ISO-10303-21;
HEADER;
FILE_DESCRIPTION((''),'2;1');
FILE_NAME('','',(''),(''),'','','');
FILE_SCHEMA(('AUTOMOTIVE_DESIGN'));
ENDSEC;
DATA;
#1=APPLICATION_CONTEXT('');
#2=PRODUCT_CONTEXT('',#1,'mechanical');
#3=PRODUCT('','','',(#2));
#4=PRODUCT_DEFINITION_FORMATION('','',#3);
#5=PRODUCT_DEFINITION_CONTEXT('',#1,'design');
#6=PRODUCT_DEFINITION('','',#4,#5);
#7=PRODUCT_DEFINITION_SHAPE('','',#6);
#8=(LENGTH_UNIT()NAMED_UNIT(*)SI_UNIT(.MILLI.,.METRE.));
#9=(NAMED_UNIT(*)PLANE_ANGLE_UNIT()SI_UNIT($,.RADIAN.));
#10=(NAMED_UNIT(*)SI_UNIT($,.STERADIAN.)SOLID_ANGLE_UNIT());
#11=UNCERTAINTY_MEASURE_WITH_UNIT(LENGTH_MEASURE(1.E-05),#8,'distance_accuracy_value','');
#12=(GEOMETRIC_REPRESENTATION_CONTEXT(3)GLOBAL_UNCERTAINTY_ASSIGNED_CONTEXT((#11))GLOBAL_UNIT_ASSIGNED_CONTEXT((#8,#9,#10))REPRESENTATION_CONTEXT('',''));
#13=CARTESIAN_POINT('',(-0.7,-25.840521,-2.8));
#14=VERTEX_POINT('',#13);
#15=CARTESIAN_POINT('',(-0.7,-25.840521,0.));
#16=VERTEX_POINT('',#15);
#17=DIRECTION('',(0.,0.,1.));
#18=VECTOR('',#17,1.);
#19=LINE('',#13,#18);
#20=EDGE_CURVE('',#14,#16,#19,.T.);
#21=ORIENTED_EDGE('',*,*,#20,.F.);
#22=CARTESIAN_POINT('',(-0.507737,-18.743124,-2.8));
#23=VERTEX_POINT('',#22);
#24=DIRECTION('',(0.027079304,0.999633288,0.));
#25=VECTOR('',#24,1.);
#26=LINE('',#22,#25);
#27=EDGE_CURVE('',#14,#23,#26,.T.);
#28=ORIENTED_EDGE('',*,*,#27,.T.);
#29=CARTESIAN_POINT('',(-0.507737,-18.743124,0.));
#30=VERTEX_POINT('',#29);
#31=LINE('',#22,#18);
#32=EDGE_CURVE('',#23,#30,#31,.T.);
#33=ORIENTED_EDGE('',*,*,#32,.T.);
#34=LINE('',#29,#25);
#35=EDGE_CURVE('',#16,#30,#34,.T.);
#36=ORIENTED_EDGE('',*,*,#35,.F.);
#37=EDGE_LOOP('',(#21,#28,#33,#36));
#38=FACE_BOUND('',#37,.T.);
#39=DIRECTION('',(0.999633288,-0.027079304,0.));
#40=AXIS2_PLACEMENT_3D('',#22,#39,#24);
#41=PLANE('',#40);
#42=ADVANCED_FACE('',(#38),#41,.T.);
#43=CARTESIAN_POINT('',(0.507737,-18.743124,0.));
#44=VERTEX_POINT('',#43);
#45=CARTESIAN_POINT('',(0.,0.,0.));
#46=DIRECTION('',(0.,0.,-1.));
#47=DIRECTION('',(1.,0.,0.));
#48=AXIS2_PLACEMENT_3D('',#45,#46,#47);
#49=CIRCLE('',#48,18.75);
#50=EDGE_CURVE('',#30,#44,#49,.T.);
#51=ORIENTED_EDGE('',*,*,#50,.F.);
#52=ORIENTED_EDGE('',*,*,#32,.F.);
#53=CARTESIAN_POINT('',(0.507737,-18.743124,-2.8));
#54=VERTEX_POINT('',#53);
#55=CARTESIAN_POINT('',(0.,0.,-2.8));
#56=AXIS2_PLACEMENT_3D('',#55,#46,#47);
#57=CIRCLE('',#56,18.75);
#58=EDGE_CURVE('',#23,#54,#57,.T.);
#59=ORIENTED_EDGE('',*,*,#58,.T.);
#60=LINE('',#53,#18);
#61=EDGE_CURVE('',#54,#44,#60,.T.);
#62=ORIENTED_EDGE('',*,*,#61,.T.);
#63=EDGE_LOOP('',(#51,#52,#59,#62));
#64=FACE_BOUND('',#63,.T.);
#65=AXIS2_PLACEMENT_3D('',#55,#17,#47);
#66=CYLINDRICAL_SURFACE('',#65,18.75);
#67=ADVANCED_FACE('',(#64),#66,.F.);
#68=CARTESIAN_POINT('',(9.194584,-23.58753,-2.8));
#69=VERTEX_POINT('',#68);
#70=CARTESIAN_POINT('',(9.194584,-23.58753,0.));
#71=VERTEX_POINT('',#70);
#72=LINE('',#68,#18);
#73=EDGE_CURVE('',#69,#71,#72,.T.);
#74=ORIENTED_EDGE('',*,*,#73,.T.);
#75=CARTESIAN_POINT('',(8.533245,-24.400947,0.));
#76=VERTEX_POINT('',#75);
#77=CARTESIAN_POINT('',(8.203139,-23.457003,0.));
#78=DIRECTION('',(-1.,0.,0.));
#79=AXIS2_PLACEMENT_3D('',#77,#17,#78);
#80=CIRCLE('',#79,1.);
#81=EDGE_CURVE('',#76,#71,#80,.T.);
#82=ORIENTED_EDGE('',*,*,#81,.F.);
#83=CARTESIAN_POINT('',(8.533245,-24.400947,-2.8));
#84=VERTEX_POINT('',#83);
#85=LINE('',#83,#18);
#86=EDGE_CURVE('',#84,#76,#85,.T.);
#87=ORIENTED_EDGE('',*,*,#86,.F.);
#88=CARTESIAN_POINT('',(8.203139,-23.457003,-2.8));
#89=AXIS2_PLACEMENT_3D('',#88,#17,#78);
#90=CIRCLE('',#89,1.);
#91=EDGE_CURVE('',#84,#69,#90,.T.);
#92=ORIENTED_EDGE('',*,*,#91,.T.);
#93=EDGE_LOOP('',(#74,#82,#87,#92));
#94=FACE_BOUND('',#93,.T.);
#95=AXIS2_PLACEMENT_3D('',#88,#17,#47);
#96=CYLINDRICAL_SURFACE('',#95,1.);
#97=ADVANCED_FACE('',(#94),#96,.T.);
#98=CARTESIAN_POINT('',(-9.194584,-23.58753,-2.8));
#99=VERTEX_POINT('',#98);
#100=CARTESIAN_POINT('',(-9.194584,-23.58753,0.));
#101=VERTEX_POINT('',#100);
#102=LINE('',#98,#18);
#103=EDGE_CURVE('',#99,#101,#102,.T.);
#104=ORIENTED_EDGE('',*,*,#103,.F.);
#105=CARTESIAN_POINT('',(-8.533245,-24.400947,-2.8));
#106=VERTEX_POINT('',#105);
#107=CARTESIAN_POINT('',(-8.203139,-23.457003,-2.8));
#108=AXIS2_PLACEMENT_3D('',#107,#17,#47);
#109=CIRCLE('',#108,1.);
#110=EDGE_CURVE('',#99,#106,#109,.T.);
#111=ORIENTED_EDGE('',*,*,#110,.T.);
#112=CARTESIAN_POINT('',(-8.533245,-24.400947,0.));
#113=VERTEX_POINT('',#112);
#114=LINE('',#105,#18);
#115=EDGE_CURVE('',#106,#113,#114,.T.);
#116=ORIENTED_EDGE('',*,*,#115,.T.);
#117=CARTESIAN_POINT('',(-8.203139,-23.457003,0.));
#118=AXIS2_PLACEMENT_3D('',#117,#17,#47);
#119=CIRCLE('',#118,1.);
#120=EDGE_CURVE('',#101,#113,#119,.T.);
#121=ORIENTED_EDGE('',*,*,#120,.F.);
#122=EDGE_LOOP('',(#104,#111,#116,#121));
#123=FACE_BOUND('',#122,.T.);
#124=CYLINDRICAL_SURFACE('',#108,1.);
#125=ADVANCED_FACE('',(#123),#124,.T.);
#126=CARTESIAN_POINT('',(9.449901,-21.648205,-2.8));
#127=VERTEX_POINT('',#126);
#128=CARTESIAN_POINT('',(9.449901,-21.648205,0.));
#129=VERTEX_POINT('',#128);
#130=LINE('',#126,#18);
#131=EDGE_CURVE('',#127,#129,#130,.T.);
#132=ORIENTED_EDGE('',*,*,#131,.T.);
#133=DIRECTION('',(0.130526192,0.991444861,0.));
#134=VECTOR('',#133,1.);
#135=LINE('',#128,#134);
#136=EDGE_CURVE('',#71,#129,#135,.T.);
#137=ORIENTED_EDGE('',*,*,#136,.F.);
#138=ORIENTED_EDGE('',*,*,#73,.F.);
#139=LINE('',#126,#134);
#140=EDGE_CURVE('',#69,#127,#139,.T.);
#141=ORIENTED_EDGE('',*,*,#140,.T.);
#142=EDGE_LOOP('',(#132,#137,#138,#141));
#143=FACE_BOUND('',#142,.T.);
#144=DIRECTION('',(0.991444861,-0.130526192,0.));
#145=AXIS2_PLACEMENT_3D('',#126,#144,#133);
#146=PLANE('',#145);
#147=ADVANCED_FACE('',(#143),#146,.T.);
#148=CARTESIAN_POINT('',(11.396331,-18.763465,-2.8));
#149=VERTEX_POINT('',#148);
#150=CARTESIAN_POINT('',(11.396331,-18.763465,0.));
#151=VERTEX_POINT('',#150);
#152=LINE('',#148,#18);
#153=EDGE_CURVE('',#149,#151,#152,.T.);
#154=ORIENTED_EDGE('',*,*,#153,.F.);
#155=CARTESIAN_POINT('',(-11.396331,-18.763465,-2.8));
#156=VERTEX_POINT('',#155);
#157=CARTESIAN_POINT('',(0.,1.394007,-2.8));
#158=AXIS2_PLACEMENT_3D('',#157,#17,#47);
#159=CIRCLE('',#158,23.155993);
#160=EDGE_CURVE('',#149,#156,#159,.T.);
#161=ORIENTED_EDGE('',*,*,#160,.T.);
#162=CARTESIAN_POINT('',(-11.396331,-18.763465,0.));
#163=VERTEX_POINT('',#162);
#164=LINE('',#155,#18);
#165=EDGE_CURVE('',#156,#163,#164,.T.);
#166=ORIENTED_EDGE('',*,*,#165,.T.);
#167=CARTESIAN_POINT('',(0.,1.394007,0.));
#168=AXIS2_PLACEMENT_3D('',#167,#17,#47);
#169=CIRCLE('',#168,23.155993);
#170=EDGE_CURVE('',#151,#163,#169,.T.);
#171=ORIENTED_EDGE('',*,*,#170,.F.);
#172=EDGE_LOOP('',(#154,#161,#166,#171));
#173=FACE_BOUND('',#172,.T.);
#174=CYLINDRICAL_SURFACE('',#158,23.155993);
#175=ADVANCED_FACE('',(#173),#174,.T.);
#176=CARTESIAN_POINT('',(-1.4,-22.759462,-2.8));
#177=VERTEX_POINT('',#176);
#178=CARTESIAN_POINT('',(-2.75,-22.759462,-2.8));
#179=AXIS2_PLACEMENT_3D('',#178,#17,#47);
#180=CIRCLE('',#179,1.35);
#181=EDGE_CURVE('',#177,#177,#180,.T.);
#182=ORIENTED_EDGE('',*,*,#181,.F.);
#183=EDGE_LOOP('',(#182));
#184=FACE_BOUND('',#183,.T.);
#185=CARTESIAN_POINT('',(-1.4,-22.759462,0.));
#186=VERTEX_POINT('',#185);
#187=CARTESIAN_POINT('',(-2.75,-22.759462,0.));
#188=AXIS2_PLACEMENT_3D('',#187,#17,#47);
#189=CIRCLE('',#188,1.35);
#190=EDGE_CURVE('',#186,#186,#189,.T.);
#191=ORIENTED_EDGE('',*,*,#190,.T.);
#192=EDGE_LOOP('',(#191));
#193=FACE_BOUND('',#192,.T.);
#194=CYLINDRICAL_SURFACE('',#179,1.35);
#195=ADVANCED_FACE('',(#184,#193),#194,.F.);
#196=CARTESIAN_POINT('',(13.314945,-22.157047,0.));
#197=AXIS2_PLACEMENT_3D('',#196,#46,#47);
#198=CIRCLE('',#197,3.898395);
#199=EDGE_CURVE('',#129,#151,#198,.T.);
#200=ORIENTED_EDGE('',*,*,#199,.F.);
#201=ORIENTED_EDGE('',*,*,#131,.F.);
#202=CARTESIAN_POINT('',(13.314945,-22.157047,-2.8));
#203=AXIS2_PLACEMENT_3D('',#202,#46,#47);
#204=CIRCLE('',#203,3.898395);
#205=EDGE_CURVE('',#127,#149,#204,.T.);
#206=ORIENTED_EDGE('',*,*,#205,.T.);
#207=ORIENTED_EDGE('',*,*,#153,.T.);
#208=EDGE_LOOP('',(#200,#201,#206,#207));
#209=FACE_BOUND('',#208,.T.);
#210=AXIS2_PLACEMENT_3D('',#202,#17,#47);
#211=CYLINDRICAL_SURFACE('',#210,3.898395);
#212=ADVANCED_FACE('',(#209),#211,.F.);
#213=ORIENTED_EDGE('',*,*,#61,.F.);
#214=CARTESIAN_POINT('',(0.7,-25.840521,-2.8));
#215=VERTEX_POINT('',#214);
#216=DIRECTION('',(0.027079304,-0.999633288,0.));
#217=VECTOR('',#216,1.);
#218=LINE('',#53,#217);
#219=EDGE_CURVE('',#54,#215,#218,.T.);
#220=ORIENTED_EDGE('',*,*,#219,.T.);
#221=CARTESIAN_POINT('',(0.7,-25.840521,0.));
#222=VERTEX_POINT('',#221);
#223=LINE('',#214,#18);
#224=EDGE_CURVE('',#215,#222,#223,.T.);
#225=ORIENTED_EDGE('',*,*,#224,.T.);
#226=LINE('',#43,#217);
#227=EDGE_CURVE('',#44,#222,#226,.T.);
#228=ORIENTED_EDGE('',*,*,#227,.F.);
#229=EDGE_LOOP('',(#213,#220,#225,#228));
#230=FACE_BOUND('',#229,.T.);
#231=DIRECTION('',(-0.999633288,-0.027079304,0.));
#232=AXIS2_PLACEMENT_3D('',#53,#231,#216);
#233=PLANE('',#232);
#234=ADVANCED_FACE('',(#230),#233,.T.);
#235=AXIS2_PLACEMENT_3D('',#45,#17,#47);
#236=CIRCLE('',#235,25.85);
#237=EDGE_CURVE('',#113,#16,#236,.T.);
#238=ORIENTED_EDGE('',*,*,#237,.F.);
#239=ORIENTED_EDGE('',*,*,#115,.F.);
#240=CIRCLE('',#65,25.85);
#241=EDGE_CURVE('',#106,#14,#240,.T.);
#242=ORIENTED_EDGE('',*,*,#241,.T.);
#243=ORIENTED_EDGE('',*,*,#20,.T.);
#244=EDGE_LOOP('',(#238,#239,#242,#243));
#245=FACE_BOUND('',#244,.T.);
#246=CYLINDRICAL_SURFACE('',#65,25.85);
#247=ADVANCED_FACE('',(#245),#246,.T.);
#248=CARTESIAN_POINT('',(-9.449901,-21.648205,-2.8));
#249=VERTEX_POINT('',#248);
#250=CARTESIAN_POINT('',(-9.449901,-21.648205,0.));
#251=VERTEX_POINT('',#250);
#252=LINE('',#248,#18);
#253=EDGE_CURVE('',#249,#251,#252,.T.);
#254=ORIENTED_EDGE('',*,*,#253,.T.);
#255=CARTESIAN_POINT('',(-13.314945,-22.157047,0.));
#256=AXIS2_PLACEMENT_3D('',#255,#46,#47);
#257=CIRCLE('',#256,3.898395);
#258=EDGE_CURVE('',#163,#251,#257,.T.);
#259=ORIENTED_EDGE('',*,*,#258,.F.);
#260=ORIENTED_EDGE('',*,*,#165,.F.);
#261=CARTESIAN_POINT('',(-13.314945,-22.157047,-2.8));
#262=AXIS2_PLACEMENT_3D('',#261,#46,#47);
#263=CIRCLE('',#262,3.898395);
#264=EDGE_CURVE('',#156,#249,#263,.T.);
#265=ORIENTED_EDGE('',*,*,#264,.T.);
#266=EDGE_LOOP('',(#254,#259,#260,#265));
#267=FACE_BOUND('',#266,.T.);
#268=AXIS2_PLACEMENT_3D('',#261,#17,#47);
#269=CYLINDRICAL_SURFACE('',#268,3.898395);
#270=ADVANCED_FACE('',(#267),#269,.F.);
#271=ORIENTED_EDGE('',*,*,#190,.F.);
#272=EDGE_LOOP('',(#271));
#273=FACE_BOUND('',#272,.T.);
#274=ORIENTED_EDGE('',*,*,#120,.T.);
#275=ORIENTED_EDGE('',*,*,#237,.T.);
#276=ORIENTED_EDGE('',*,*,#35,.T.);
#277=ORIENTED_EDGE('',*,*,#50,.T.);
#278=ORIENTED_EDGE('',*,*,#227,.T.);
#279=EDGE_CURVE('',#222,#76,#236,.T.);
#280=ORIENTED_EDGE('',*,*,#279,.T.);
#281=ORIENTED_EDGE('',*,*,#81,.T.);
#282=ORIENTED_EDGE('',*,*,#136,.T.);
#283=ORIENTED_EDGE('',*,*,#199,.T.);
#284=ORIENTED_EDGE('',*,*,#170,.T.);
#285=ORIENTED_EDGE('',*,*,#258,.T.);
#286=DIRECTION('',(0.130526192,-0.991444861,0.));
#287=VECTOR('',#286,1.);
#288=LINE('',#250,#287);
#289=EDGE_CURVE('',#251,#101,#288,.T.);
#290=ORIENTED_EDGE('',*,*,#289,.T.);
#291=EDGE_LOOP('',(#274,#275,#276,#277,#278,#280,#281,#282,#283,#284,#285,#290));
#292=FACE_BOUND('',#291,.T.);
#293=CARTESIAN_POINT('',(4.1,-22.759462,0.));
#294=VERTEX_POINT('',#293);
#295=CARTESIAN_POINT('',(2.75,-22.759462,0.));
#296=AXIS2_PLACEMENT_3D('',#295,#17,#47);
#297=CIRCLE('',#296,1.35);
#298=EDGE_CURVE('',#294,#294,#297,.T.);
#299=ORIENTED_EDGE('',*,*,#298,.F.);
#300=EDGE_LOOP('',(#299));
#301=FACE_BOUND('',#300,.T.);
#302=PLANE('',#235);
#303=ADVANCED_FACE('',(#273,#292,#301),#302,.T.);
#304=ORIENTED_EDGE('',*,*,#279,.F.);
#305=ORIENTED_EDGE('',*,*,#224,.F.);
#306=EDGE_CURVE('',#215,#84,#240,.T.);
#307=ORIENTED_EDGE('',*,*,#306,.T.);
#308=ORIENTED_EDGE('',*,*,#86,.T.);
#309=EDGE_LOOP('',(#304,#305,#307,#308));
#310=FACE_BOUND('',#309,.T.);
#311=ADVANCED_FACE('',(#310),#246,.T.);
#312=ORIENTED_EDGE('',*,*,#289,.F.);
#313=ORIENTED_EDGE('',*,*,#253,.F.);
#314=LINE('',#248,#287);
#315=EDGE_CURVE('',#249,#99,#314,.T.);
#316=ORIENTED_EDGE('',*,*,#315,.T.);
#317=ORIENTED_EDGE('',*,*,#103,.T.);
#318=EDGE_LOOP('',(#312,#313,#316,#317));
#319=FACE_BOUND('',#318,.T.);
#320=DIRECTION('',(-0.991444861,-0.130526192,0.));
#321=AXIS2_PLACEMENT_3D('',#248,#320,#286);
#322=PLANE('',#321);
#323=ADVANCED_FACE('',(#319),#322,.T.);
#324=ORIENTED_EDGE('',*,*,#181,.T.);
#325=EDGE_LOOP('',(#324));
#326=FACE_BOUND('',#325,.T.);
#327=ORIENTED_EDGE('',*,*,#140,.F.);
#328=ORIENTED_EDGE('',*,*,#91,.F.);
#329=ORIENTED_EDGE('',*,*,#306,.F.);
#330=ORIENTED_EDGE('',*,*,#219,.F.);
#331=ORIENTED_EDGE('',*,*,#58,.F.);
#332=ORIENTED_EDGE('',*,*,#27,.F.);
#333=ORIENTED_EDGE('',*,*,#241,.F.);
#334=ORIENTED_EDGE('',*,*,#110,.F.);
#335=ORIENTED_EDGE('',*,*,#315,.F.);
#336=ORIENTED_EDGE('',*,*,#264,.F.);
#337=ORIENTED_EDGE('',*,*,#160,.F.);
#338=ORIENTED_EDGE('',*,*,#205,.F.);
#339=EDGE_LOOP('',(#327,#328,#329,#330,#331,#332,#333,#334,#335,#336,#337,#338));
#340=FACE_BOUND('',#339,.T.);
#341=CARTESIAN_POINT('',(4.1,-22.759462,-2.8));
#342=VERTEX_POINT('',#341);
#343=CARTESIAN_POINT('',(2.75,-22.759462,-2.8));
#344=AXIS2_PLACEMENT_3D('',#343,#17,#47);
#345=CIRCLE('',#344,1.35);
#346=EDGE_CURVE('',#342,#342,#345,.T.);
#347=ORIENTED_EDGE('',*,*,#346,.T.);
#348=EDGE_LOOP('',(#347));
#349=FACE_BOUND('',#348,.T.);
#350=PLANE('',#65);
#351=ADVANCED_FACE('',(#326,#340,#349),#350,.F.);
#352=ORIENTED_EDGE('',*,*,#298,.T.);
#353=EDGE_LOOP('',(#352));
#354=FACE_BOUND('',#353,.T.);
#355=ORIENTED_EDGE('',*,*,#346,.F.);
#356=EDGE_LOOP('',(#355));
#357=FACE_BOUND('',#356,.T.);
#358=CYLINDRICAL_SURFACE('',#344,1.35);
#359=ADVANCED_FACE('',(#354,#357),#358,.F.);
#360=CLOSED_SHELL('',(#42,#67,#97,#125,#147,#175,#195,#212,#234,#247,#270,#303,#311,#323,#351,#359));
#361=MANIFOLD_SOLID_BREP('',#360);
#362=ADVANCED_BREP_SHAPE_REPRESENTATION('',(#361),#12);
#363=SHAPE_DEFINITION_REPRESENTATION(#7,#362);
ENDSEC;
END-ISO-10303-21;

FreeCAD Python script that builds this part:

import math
import FreeCAD as App
import Part
import Sketcher

V = App.Vector
Q = App.Units.Quantity

doc = App.newDocument("Part")
body = doc.addObject("PartDesign::Body", "Body")

sketch1 = body.newObject("Sketcher::SketchObject", "Sketch")
sketch1.AttachmentSupport = (doc.getObject("XY_Plane"), [""])
sketch1.MapMode = "FlatFace"
sketch1.addGeometry([
    Part.LineSegment(V(0.5, -18.7, 0), V(0.7, -25.8, 0)),
    Part.ArcOfCircle(Part.Circle(V(0, 0, 0), V(0, 0, 1), 25.8), math.radians(-88.45), math.radians(-70.72)),
    Part.ArcOfCircle(Part.Circle(V(8.2, -23.5, 0), V(0, 0, 1), 1), math.radians(-71), math.radians(-7)),
    Part.LineSegment(V(9.2, -23.6, 0), V(9.4, -21.6, 0)),
    Part.ArcOfCircle(Part.Circle(V(13.3, -22.2, 0), V(0, 0, 1), 3.9), math.radians(119), math.radians(172)),
    Part.ArcOfCircle(Part.Circle(V(0, 1.4, 0), V(0, 0, 1), 23.2), math.radians(-61), math.radians(241)),
    Part.ArcOfCircle(Part.Circle(V(-13.3, -22.2, 0), V(0, 0, 1), 3.9), math.radians(8), math.radians(61)),
    Part.LineSegment(V(-9.4, -21.6, 0), V(-9.2, -23.6, 0)),
    Part.ArcOfCircle(Part.Circle(V(-8.2, -23.5, 0), V(0, 0, 1), 1), math.radians(-173), math.radians(-109)),
    Part.ArcOfCircle(Part.Circle(V(0, 0, 0), V(0, 0, 1), 25.8), math.radians(-109.28), math.radians(-91.55)),
    Part.LineSegment(V(-0.7, -25.8, 0), V(-0.5, -18.7, 0)),
    Part.ArcOfCircle(Part.Circle(V(0, 0, 0), V(0, 0, 1), 18.8), math.radians(-88), math.radians(268)),
    Part.Circle(V(-2.8, -22.8, 0), V(0, 0, 1), 1.4),
    Part.Circle(V(2.8, -22.8, 0), V(0, 0, 1), 1.4),
], False)
sketch1.addConstraint([
    Sketcher.Constraint("Coincident", 0, 2, 1, 1),
    Sketcher.Constraint("Tangent", 1, 2, 2, 1),
    Sketcher.Constraint("Tangent", 2, 2, 3, 1),
    Sketcher.Constraint("Tangent", 3, 2, 4, 2),
    Sketcher.Constraint("Tangent", 4, 1, 5, 1),
    Sketcher.Constraint("Tangent", 5, 2, 6, 2),
    Sketcher.Constraint("Tangent", 6, 1, 7, 1),
    Sketcher.Constraint("Tangent", 7, 2, 8, 1),
    Sketcher.Constraint("Tangent", 8, 2, 9, 1),
    Sketcher.Constraint("Coincident", 9, 2, 10, 1),
    Sketcher.Constraint("Coincident", 10, 2, 11, 2),
    Sketcher.Constraint("Coincident", 11, 1, 0, 1),
    Sketcher.Constraint("Coincident", 1, 3, -1, 1),
    Sketcher.Constraint("Coincident", 9, 3, -1, 1),
    Sketcher.Constraint("Coincident", 11, 3, -1, 1),
    Sketcher.Constraint("Equal", 4, 6),
    Sketcher.Constraint("Equal", 2, 8),
    Sketcher.Constraint("Equal", 1, 9),
    Sketcher.Constraint("Equal", 12, 13),
    Sketcher.Constraint("Symmetric", 4, 3, 6, 3, -2),
    Sketcher.Constraint("Symmetric", 12, 3, 13, 3, -2),
    Sketcher.Constraint("Horizontal", 2, 3, 8, 3),
    Sketcher.Constraint("Horizontal", 0, 2, 9, 2),
    Sketcher.Constraint("Horizontal", 10, 2, 11, 1),
    Sketcher.Constraint("Radius", 2, Q("1 mm")),
    Sketcher.Constraint("Diameter", 12, Q("2.7 mm")),
    Sketcher.Constraint("Radius", 1, Q("25.85 mm")),
    Sketcher.Constraint("Radius", 11, Q("18.75 mm")),
    Sketcher.Constraint("Angle", 3, Q("82.5 deg")),
    Sketcher.Constraint("DistanceX", -1, 1, 0, 2, Q("0.7 mm")),
    Sketcher.Constraint("DistanceX", 12, 3, 13, 3, Q("5.5 mm")),
    Sketcher.Constraint("Radius", 4, Q("3.898395 mm")),
    Sketcher.Constraint("Radius", 5, Q("23.155993 mm")),
    Sketcher.Constraint("DistanceX", -1, 1, 3, 2, Q("9.449901 mm")),
    Sketcher.Constraint("DistanceX", 1, 2, 4, 3, Q("4.781699 mm")),
    Sketcher.Constraint("DistanceY", 8, 3, 12, 3, Q("0.697541 mm")),
    Sketcher.Constraint("DistanceY", 12, 3, 10, 2, Q("4.016338 mm")),
])
pad1 = body.newObject("PartDesign::Pad", "Pad")
pad1.Profile = sketch1
pad1.Length = 2.8
pad1.Reversed = True

doc.recompute()
